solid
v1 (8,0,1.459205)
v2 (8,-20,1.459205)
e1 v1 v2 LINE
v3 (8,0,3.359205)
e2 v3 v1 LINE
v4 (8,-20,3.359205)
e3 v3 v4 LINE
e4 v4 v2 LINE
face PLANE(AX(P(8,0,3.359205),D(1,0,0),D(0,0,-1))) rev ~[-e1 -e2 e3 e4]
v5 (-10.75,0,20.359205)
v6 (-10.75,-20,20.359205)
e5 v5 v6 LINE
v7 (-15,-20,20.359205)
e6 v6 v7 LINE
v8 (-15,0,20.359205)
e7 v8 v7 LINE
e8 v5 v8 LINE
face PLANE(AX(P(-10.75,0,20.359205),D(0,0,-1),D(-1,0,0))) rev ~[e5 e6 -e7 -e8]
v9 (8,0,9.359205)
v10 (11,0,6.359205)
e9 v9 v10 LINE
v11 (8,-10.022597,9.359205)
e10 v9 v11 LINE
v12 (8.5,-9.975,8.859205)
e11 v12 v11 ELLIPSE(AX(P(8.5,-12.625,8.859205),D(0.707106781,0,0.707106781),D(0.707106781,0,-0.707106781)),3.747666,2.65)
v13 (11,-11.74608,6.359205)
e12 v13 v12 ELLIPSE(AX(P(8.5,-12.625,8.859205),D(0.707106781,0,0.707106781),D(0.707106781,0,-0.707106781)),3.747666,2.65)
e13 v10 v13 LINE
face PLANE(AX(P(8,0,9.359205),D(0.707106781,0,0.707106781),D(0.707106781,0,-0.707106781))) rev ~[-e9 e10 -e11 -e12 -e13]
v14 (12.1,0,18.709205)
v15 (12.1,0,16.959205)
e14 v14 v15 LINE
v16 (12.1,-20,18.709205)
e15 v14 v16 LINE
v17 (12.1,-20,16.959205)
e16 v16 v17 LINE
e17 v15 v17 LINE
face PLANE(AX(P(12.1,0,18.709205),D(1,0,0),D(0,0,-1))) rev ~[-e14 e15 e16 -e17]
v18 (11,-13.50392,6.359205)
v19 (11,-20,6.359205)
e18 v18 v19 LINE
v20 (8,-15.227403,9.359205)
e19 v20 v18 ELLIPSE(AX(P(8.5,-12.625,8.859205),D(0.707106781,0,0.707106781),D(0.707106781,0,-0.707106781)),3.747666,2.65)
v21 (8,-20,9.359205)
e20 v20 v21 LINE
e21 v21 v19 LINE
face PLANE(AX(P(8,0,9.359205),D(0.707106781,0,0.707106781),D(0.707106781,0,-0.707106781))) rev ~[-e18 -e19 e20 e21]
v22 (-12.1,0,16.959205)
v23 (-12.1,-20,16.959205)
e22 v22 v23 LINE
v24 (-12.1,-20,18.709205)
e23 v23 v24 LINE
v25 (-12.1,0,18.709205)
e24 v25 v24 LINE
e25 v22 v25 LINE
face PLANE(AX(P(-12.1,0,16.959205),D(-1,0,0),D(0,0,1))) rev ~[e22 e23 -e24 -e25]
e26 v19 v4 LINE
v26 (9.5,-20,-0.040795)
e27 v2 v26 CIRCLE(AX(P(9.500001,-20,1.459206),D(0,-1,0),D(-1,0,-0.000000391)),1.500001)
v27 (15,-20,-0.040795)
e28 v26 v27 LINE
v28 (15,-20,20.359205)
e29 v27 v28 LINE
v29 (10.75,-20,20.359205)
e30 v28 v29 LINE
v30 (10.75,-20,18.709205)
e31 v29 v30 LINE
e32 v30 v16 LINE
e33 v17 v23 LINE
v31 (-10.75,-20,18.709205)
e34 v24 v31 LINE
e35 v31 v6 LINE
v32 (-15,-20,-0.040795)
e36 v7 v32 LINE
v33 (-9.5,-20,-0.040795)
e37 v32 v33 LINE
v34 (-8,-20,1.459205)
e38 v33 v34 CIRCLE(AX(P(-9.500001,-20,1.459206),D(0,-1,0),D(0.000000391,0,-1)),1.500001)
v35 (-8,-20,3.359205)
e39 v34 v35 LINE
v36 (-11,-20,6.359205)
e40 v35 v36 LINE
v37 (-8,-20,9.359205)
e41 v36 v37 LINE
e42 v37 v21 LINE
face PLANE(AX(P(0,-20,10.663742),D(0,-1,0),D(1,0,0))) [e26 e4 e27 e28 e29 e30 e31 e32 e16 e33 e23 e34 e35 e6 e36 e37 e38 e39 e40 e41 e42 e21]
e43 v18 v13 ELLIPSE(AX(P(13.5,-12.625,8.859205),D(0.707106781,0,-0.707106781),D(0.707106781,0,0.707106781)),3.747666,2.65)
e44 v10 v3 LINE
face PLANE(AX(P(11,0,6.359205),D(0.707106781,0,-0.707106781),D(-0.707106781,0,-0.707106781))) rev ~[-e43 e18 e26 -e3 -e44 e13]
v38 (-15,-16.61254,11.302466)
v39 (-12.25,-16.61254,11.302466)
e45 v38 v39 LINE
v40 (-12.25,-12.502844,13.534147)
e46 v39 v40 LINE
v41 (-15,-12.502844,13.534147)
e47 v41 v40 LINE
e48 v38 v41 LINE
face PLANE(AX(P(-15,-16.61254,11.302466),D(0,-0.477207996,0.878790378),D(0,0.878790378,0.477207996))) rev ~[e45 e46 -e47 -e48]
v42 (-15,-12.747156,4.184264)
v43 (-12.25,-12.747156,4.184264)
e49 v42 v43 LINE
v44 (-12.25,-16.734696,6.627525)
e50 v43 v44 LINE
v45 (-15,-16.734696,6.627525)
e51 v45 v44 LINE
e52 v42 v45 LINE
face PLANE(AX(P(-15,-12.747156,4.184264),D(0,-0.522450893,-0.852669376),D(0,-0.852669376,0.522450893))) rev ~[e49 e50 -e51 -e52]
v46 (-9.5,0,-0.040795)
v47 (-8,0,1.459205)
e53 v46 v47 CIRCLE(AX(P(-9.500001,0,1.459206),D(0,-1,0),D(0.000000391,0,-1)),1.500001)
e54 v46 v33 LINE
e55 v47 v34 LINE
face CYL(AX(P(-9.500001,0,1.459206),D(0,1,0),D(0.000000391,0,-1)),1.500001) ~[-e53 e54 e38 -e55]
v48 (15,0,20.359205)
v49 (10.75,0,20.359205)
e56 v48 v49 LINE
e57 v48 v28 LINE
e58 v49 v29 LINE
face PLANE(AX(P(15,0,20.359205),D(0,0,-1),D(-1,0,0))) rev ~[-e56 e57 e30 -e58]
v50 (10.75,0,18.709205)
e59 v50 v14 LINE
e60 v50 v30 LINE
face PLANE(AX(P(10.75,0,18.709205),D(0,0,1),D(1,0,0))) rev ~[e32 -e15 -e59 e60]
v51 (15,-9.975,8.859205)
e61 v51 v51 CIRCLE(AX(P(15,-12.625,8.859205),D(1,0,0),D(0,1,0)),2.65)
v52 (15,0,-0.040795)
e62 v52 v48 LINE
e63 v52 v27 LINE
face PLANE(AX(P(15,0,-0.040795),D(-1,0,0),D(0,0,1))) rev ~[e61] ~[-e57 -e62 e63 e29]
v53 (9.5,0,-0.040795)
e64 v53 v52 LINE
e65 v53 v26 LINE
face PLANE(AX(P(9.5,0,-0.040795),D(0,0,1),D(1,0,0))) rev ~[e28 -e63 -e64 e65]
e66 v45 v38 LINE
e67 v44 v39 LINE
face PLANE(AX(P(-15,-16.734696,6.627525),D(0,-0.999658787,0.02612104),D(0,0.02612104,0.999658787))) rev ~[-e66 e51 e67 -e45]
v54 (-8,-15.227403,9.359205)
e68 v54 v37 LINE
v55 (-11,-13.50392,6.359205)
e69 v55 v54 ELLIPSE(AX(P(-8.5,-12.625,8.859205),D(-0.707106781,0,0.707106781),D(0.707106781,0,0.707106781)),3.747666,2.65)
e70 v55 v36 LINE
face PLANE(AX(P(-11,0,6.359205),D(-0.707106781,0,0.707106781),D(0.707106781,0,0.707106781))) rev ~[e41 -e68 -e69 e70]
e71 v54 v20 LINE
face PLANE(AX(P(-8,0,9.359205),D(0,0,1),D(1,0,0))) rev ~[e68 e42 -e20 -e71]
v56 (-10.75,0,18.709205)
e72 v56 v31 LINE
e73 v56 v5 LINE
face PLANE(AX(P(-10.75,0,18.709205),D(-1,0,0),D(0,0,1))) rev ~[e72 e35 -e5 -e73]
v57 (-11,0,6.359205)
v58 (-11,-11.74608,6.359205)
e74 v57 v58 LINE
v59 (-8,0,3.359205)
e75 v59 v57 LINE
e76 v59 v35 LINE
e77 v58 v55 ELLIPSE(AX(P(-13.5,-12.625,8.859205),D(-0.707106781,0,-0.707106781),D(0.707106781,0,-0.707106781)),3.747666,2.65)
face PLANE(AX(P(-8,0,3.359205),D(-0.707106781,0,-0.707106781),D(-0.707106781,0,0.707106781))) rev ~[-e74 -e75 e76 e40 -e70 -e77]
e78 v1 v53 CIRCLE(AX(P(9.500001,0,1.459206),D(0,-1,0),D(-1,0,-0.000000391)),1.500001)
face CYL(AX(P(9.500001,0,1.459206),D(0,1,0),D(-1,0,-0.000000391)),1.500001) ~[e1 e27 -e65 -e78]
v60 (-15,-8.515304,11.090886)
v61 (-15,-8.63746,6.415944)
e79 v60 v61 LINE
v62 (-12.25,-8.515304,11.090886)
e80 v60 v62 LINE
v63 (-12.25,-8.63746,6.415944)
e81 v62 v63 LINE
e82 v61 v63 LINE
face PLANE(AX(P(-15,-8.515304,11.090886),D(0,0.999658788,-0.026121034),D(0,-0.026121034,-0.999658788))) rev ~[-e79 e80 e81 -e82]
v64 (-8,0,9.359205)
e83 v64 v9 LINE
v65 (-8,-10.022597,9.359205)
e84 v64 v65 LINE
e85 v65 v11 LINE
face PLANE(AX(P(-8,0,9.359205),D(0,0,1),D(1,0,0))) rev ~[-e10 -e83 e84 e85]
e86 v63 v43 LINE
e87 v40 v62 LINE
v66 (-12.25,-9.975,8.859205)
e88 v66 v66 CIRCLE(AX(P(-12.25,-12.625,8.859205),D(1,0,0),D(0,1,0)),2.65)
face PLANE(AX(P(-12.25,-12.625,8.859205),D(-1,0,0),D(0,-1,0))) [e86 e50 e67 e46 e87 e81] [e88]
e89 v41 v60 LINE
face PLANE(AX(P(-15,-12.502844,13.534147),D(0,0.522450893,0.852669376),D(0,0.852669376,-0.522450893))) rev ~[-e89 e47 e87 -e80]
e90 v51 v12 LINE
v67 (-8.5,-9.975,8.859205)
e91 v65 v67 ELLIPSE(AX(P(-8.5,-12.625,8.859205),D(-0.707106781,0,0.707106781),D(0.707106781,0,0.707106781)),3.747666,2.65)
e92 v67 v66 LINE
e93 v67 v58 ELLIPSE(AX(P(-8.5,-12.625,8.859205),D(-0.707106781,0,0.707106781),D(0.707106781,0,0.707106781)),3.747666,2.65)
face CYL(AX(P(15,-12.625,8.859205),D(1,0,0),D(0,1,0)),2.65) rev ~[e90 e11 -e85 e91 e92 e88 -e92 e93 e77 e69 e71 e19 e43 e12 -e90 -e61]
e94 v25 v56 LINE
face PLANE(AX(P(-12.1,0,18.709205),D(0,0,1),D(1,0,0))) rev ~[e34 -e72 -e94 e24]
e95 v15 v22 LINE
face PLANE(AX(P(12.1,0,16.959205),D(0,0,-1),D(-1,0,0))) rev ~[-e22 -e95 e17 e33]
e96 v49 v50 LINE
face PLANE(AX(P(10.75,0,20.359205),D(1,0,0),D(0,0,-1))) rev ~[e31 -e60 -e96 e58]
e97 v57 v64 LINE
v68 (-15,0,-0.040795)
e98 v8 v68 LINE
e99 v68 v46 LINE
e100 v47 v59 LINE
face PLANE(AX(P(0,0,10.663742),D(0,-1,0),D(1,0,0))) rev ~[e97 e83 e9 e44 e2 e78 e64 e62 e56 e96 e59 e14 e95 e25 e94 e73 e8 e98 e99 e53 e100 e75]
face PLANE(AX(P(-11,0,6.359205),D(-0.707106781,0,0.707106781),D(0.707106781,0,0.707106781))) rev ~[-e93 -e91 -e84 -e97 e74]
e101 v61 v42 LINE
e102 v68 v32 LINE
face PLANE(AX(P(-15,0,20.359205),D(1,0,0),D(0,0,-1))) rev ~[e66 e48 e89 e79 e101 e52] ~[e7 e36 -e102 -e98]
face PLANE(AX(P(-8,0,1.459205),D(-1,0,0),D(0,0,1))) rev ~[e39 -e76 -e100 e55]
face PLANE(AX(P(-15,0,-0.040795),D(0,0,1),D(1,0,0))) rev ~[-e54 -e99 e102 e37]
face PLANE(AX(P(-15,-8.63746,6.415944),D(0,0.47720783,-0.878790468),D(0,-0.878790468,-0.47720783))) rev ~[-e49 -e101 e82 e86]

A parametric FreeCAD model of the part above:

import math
import FreeCAD as App
import Part
import Sketcher

doc = App.newDocument("Part")
body = doc.addObject("PartDesign::Body", "Body")

# Sketch on XZ plane
sketch1 = body.newObject("Sketcher::SketchObject", "Sketch")
sketch1.AttachmentSupport = (doc.getObject("XZ_Plane"), [""])
sketch1.MapMode = "FlatFace"
sketch1.addGeometry(Part.LineSegment(App.Vector(12.1, 17, 0), App.Vector(-12.1, 17, 0)), False)
sketch1.addGeometry(Part.LineSegment(App.Vector(-12.1, 17, 0), App.Vector(-12.1, 18.7, 0)), False)
sketch1.addGeometry(Part.LineSegment(App.Vector(-12.1, 18.7, 0), App.Vector(-10.8, 18.7, 0)), False)
sketch1.addGeometry(Part.LineSegment(App.Vector(-10.8, 18.7, 0), App.Vector(-10.8, 20.4, 0)), False)
sketch1.addGeometry(Part.LineSegment(App.Vector(-10.8, 20.4, 0), App.Vector(-15, 20.4, 0)), False)
sketch1.addGeometry(Part.LineSegment(App.Vector(-15, 20.4, 0), App.Vector(-15, 0, 0)), False)
sketch1.addGeometry(Part.LineSegment(App.Vector(-15, 0, 0), App.Vector(-9.5, 0, 0)), False)
sketch1.addGeometry(Part.ArcOfCircle(Part.Circle(App.Vector(-9.5, 1.5, 0), App.Vector(0, 0, 1), 1.5), math.radians(-90), math.radians(0)), False)
sketch1.addGeometry(Part.LineSegment(App.Vector(-8, 1.5, 0), App.Vector(-8, 3.4, 0)), False)
sketch1.addGeometry(Part.LineSegment(App.Vector(-8, 3.4, 0), App.Vector(-11, 6.4, 0)), False)
sketch1.addGeometry(Part.LineSegment(App.Vector(-11, 6.4, 0), App.Vector(-8, 9.4, 0)), False)
sketch1.addGeometry(Part.LineSegment(App.Vector(-8, 9.4, 0), App.Vector(8, 9.4, 0)), False)
sketch1.addGeometry(Part.LineSegment(App.Vector(8, 9.4, 0), App.Vector(11, 6.4, 0)), False)
sketch1.addGeometry(Part.LineSegment(App.Vector(11, 6.4, 0), App.Vector(8, 3.4, 0)), False)
sketch1.addGeometry(Part.LineSegment(App.Vector(8, 3.4, 0), App.Vector(8, 1.5, 0)), False)
sketch1.addGeometry(Part.ArcOfCircle(Part.Circle(App.Vector(9.5, 1.5, 0), App.Vector(0, 0, 1), 1.5), math.radians(-180), math.radians(-90)), False)
sketch1.addGeometry(Part.LineSegment(App.Vector(9.5, 0, 0), App.Vector(15, 0, 0)), False)
sketch1.addGeometry(Part.LineSegment(App.Vector(15, 0, 0), App.Vector(15, 20.4, 0)), False)
sketch1.addGeometry(Part.LineSegment(App.Vector(15, 20.4, 0), App.Vector(10.8, 20.4, 0)), False)
sketch1.addGeometry(Part.LineSegment(App.Vector(10.8, 20.4, 0), App.Vector(10.8, 18.7, 0)), False)
sketch1.addGeometry(Part.LineSegment(App.Vector(10.8, 18.7, 0), App.Vector(12.1, 18.7, 0)), False)
sketch1.addGeometry(Part.LineSegment(App.Vector(12.1, 18.7, 0), App.Vector(12.1, 17, 0)), False)
sketch1.addConstraint(Sketcher.Constraint("Coincident", 0, 2, 1, 1))
sketch1.addConstraint(Sketcher.Constraint("Coincident", 1, 2, 2, 1))
sketch1.addConstraint(Sketcher.Constraint("Coincident", 2, 2, 3, 1))
sketch1.addConstraint(Sketcher.Constraint("Coincident", 3, 2, 4, 1))
sketch1.addConstraint(Sketcher.Constraint("Coincident", 4, 2, 5, 1))
sketch1.addConstraint(Sketcher.Constraint("Coincident", 5, 2, 6, 1))
sketch1.addConstraint(Sketcher.Constraint("Tangent", 6, 2, 7, 1))
sketch1.addConstraint(Sketcher.Constraint("Tangent", 7, 2, 8, 1))
sketch1.addConstraint(Sketcher.Constraint("Coincident", 8, 2, 9, 1))
sketch1.addConstraint(Sketcher.Constraint("Coincident", 9, 2, 10, 1))
sketch1.addConstraint(Sketcher.Constraint("Coincident", 10, 2, 11, 1))
sketch1.addConstraint(Sketcher.Constraint("Coincident", 11, 2, 12, 1))
sketch1.addConstraint(Sketcher.Constraint("Coincident", 12, 2, 13, 1))
sketch1.addConstraint(Sketcher.Constraint("Coincident", 13, 2, 14, 1))
sketch1.addConstraint(Sketcher.Constraint("Tangent", 14, 2, 15, 1))
sketch1.addConstraint(Sketcher.Constraint("Tangent", 15, 2, 16, 1))
sketch1.addConstraint(Sketcher.Constraint("Coincident", 16, 2, 17, 1))
sketch1.addConstraint(Sketcher.Constraint("Coincident", 17, 2, 18, 1))
sketch1.addConstraint(Sketcher.Constraint("Coincident", 18, 2, 19, 1))
sketch1.addConstraint(Sketcher.Constraint("Coincident", 19, 2, 20, 1))
sketch1.addConstraint(Sketcher.Constraint("Coincident", 20, 2, 21, 1))
sketch1.addConstraint(Sketcher.Constraint("Coincident", 21, 2, 0, 1))
sketch1.addConstraint(Sketcher.Constraint("Horizontal", 0))
sketch1.addConstraint(Sketcher.Constraint("Vertical", 1))
sketch1.addConstraint(Sketcher.Constraint("Horizontal", 2))
sketch1.addConstraint(Sketcher.Constraint("Vertical", 3))
sketch1.addConstraint(Sketcher.Constraint("Horizontal", 4))
sketch1.addConstraint(Sketcher.Constraint("Vertical", 5))
sketch1.addConstraint(Sketcher.Constraint("Horizontal", 6))
sketch1.addConstraint(Sketcher.Constraint("Vertical", 8))
sketch1.addConstraint(Sketcher.Constraint("Horizontal", 11))
sketch1.addConstraint(Sketcher.Constraint("Vertical", 14))
sketch1.addConstraint(Sketcher.Constraint("Horizontal", 16))
sketch1.addConstraint(Sketcher.Constraint("Vertical", 17))
sketch1.addConstraint(Sketcher.Constraint("Horizontal", 18))
sketch1.addConstraint(Sketcher.Constraint("Vertical", 19))
sketch1.addConstraint(Sketcher.Constraint("Horizontal", 20))
sketch1.addConstraint(Sketcher.Constraint("Vertical", 21))
sketch1.addConstraint(Sketcher.Constraint("Equal", 7, 15))
sketch1.addConstraint(Sketcher.Constraint("Symmetric", 7, 3, 15, 3, -2))
sketch1.addConstraint(Sketcher.Constraint("Symmetric", 9, 2, 12, 2, -2))
sketch1.addConstraint(Sketcher.Constraint("Symmetric", 4, 2, 17, 2, -2))
sketch1.addConstraint(Sketcher.Constraint("Symmetric", 2, 2, 19, 2, -2))
sketch1.addConstraint(Sketcher.Constraint("Perpendicular", 9, 10))
sketch1.addConstraint(Sketcher.Constraint("Perpendicular", 10, 12))
sketch1.addConstraint(Sketcher.Constraint("Perpendicular", 12, 13))
sketch1.addConstraint(Sketcher.Constraint("Horizontal", 8, 2, 13, 2))
sketch1.addConstraint(Sketcher.Constraint("Vertical", 8, 2, 10, 2))
sketch1.addConstraint(Sketcher.Constraint("Equal", 2, 20))
sketch1.addConstraint(Sketcher.Constraint("Radius", 7, 1.500001))
sketch1.addConstraint(Sketcher.Constraint("DistanceX", 11, 1, 11, 2, 16.0))
sketch1.addConstraint(Sketcher.Constraint("DistanceX", 0, 2, 0, 1, 24.2))
sketch1.addConstraint(Sketcher.Constraint("DistanceX", 6, 1, 6, 2, 5.5))
sketch1.addConstraint(Sketcher.Constraint("DistanceY", 5, 2, 5, 1, 20.4))
sketch1.addConstraint(Sketcher.Constraint("DistanceY", 8, 1, 8, 2, 1.9))
sketch1.addConstraint(Sketcher.Constraint("DistanceX", 9, 2, -1, 1, 11.0))
sketch1.addConstraint(Sketcher.Constraint("DistanceY", 5, 2, 0, 2, 17.0))
sketch1.addConstraint(Sketcher.Constraint("DistanceX", 2, 1, 2, 2, 1.35))
sketch1.addConstraint(Sketcher.Constraint("DistanceY", 1, 1, 1, 2, 1.75))
sketch1.addConstraint(Sketcher.Constraint("DistanceY", -1, 1, 7, 3, 1.459206))
pad1 = body.newObject("PartDesign::Pad", "Pad")
pad1.Profile = sketch1
pad1.Length = 20

# Sketch on YZ plane
sketch2 = body.newObject("Sketcher::SketchObject", "Sketch001")
sketch2.AttachmentSupport = (doc.getObject("YZ_Plane"), [""])
sketch2.MapMode = "FlatFace"
sketch2.AttachmentOffset = App.Placement(App.Vector(0, 0, 15), App.Rotation())
sketch2.addGeometry(Part.Circle(App.Vector(-12.6, 8.9, 0), App.Vector(0, 0, 1), 2.6), False)
sketch2.addConstraint(Sketcher.Constraint("Diameter", 0, 5.3))
sketch2.addConstraint(Sketcher.Constraint("DistanceX", 0, 3, -1, 1, 12.625))
sketch2.addConstraint(Sketcher.Constraint("DistanceY", -1, 1, 0, 3, 8.859205))
pocket1 = body.newObject("PartDesign::Pocket", "Pocket")
pocket1.Profile = sketch2
pocket1.Length = 30

# Sketch on YZ plane
sketch3 = body.newObject("Sketcher::SketchObject", "Sketch002")
sketch3.AttachmentSupport = (doc.getObject("YZ_Plane"), [""])
sketch3.MapMode = "FlatFace"
sketch3.AttachmentOffset = App.Placement(App.Vector(0, 0, -15), App.Rotation())
sketch3.addGeometry(Part.LineSegment(App.Vector(-16.61254, 11.302466, 0), App.Vector(-12.502844, 13.534147, 0)), False)
sketch3.addGeometry(Part.LineSegment(App.Vector(-12.502844, 13.534147, 0), App.Vector(-8.515304, 11.090886, 0)), False)
sketch3.addGeometry(Part.LineSegment(App.Vector(-8.515304, 11.090886, 0), App.Vector(-8.63746, 6.415944, 0)), False)
sketch3.addGeometry(Part.LineSegment(App.Vector(-8.63746, 6.415944, 0), App.Vector(-12.747156, 4.184264, 0)), False)
sketch3.addGeometry(Part.LineSegment(App.Vector(-12.747156, 4.184264, 0), App.Vector(-16.734696, 6.627525, 0)), False)
sketch3.addGeometry(Part.LineSegment(App.Vector(-16.734696, 6.627525, 0), App.Vector(-16.61254, 11.302466, 0)), False)
sketch3.addConstraint(Sketcher.Constraint("Coincident", 0, 2, 1, 1))
sketch3.addConstraint(Sketcher.Constraint("Coincident", 1, 2, 2, 1))
sketch3.addConstraint(Sketcher.Constraint("Coincident", 2, 2, 3, 1))
sketch3.addConstraint(Sketcher.Constraint("Coincident", 3, 2, 4, 1))
sketch3.addConstraint(Sketcher.Constraint("Coincident", 4, 2, 5, 1))
sketch3.addConstraint(Sketcher.Constraint("Coincident", 5, 2, 0, 1))
sketch3.addConstraint(Sketcher.Constraint("DistanceX", 2, 2, -1, 1, 8.63746))
sketch3.addConstraint(Sketcher.Constraint("DistanceX", 5, 2, -1, 1, 16.61254))
sketch3.addConstraint(Sketcher.Constraint("DistanceX", 0, 2, 1, 2, 3.98754))
sketch3.addConstraint(Sketcher.Constraint("DistanceY", 1, 2, 0, 2, 2.443261))
sketch3.addConstraint(Sketcher.Constraint("DistanceY", 2, 2, 1, 2, 4.674942))
sketch3.addConstraint(Sketcher.Constraint("DistanceY", 3, 2, 2, 2, 2.23168))
sketch3.addConstraint(Sketcher.Constraint("DistanceX", 4, 2, 3, 2, 3.98754))
sketch3.addConstraint(Sketcher.Constraint("DistanceY", 3, 2, 4, 2, 2.443261))
sketch3.addConstraint(Sketcher.Constraint("DistanceX", 4, 2, 1, 2, 8.219392))
sketch3.addConstraint(Sketcher.Constraint("DistanceY", 4, 2, 5, 2, 4.674941))
sketch3.addConstraint(Sketcher.Constraint("Distance", 0, 4.676537))
sketch3.addConstraint(Sketcher.Constraint("DistanceY", -1, 1, 0, 2, 13.534147))
pocket2 = body.newObject("PartDesign::Pocket", "Pocket001")
pocket2.Profile = sketch3
pocket2.Length = 2.75
pocket2.Reversed = True

doc.recompute()
